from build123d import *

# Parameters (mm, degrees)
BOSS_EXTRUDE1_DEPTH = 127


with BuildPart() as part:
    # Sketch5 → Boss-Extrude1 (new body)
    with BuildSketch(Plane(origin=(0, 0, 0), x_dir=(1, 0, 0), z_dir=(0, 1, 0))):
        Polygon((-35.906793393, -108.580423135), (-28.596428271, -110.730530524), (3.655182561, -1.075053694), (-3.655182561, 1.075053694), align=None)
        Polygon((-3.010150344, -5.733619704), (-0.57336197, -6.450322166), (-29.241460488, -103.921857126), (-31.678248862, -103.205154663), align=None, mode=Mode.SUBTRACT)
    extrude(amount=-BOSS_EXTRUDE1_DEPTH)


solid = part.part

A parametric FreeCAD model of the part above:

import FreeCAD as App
import Part
import Sketcher
Q = App.Units.Quantity


def add_polygon(sketch, points):
    """Adds a closed chain of lines whose ends are joined by coincident constraints."""
    first, n = sketch.GeometryCount, len(points)
    for a, b in zip(points, points[1:] + points[:1]):
        sketch.addGeometry(Part.LineSegment(App.Vector(*a, 0), App.Vector(*b, 0)), False)
    for i in range(n):
        sketch.addConstraint(Sketcher.Constraint("Coincident", first + i, 2, first + (i + 1) % n, 1))

doc = App.newDocument("Part")
body = doc.addObject("PartDesign::Body", "Body")

# Sketch on XZ plane
sketch1 = body.newObject("Sketcher::SketchObject", "Sketch")
sketch1.AttachmentSupport = (doc.getObject("XZ_Plane"), [""])
sketch1.MapMode = "FlatFace"
add_polygon(sketch1, [(-35.9, 108.6), (-28.6, 110.7), (3.7, 1.1), (-3.7, -1.1)])  # lines 0-3
add_polygon(sketch1, [(-31.7, 103.2), (-3, 5.7), (-0.6, 6.5), (-29.2, 103.9)])  # lines 4-7
sketch1.addConstraint(Sketcher.Constraint("Symmetric", 1, 2, 2, 2, -1, 1))
sketch1.addConstraint(Sketcher.Constraint("Perpendicular", 0, 1))
sketch1.addConstraint(Sketcher.Constraint("Perpendicular", 1, 2))
sketch1.addConstraint(Sketcher.Constraint("Perpendicular", 2, 3))
sketch1.addConstraint(Sketcher.Constraint("Parallel", 3, 4))
sketch1.addConstraint(Sketcher.Constraint("Perpendicular", 4, 5))
sketch1.addConstraint(Sketcher.Constraint("Perpendicular", 5, 6))
sketch1.addConstraint(Sketcher.Constraint("Perpendicular", 6, 7))
sketch1.addConstraint(Sketcher.Constraint("Distance", 4, Q("4 in")))
sketch1.addConstraint(Sketcher.Constraint("Distance", 0, Q("0.3 in")))
sketch1.addConstraint(Sketcher.Constraint("Distance", 1, Q("4.5 in")))
sketch1.addConstraint(Sketcher.Constraint("Distance", 5, Q("0.1 in")))
sketch1.addConstraint(Sketcher.Constraint("DistanceY", 5, 2, 3, 2, Q("102.130101 mm")))
sketch1.addConstraint(Sketcher.Constraint("DistanceX", 6, 2, 5, 2, Q("28.668099 mm")))
sketch1.addConstraint(Sketcher.Constraint("DistanceX", 4, 2, -1, 1, Q("3.01015 mm")))
pad1 = body.newObject("PartDesign::Pad", "Pad")
pad1.Profile = sketch1
pad1.Length = Q("5 in")

doc.recompute()
